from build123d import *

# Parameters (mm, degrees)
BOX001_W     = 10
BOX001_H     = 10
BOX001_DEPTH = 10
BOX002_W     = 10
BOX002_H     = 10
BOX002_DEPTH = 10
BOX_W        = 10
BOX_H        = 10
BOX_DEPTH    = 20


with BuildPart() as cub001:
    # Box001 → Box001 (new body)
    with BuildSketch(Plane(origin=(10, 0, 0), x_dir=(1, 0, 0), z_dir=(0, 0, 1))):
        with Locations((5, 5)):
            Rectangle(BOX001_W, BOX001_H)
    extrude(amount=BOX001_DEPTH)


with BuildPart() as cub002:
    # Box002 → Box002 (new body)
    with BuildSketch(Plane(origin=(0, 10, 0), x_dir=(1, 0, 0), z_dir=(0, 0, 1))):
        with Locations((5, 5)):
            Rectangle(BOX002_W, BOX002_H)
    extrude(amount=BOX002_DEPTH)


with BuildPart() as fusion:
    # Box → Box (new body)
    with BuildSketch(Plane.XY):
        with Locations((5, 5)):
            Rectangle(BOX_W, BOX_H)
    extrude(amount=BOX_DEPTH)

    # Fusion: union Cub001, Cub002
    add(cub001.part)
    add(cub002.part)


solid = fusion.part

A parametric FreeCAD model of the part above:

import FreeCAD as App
import Part
import Sketcher
Q = App.Units.Quantity


def add_polygon(sketch, points):
    """Adds a closed chain of lines whose ends are joined by coincident constraints."""
    first, n = sketch.GeometryCount, len(points)
    for a, b in zip(points, points[1:] + points[:1]):
        sketch.addGeometry(Part.LineSegment(App.Vector(*a, 0), App.Vector(*b, 0)), False)
    for i in range(n):
        sketch.addConstraint(Sketcher.Constraint("Coincident", first + i, 2, first + (i + 1) % n, 1))

doc = App.newDocument("Part")
body = doc.addObject("PartDesign::Body", "Body")

# Sketch on XY plane
sketch1 = doc.addObject("Sketcher::SketchObject", "Sketch")
body.addObject(sketch1)
sketch1.AttachmentSupport = (doc.XY_Plane, [""])
sketch1.MapMode = "FlatFace"
add_polygon(sketch1, [(10, 10), (10, 0), (20, 0), (20, 10)])  # lines 0-3
sketch1.addConstraint([
    Sketcher.Constraint("Vertical", 0),
    Sketcher.Constraint("Horizontal", 1),
    Sketcher.Constraint("Vertical", 2),
    Sketcher.Constraint("Horizontal", 3),
    Sketcher.Constraint("PointOnObject", 0, 2, -1),
    Sketcher.Constraint("Equal", 3, 0),
    Sketcher.Constraint("DistanceX", 1, 1, 1, 2, Q("10 mm")),
    Sketcher.Constraint("DistanceX", -1, 1, 0, 2, Q("10 mm")),
])
pad1 = doc.addObject("PartDesign::Pad", "Pad")
body.addObject(pad1)
pad1.Profile = sketch1
pad1.Length = 10
body2 = doc.addObject("PartDesign::Body", "Body001")

# Sketch on XY plane
sketch2 = doc.addObject("Sketcher::SketchObject", "Sketch001")
body2.addObject(sketch2)
sketch2.AttachmentSupport = (doc.getObject("XY_Plane001"), [""])
sketch2.MapMode = "FlatFace"
add_polygon(sketch2, [(0, 20), (0, 10), (10, 10), (10, 20)])  # lines 0-3
sketch2.addConstraint([
    Sketcher.Constraint("Vertical", 0),
    Sketcher.Constraint("Horizontal", 1),
    Sketcher.Constraint("Vertical", 2),
    Sketcher.Constraint("Horizontal", 3),
    Sketcher.Constraint("PointOnObject", 0, 2, -2),
    Sketcher.Constraint("Equal", 3, 0),
    Sketcher.Constraint("DistanceX", 1, 1, 1, 2, Q("10 mm")),
    Sketcher.Constraint("DistanceY", -1, 1, 0, 2, Q("10 mm")),
])
pad2 = doc.addObject("PartDesign::Pad", "Pad001")
body2.addObject(pad2)
pad2.Profile = sketch2
pad2.Length = 10
body3 = doc.addObject("PartDesign::Body", "Body002")

# Sketch on XY plane
sketch3 = doc.addObject("Sketcher::SketchObject", "Sketch002")
body3.addObject(sketch3)
sketch3.AttachmentSupport = (doc.getObject("XY_Plane002"), [""])
sketch3.MapMode = "FlatFace"
add_polygon(sketch3, [(0, 10), (0, 0), (10, 0), (10, 10)])  # lines 0-3
sketch3.addConstraint([
    Sketcher.Constraint("Vertical", 0),
    Sketcher.Constraint("Horizontal", 1),
    Sketcher.Constraint("Vertical", 2),
    Sketcher.Constraint("Horizontal", 3),
    Sketcher.Constraint("Coincident", 0, 2, -1, 1),
    Sketcher.Constraint("Equal", 3, 0),
    Sketcher.Constraint("DistanceX", 1, 1, 1, 2, Q("10 mm")),
])
pad3 = doc.addObject("PartDesign::Pad", "Pad002")
body3.addObject(pad3)
pad3.Profile = sketch3
pad3.Length = 20
doc.recompute()

boolean = doc.addObject("PartDesign::Boolean", "Boolean")
body3.addObject(boolean)
boolean.Type = "Fuse"
boolean.addObjects([body])
doc.recompute()

boolean2 = doc.addObject("PartDesign::Boolean", "Boolean001")
body3.addObject(boolean2)
boolean2.Type = "Fuse"
boolean2.addObjects([body2])

doc.recompute()
